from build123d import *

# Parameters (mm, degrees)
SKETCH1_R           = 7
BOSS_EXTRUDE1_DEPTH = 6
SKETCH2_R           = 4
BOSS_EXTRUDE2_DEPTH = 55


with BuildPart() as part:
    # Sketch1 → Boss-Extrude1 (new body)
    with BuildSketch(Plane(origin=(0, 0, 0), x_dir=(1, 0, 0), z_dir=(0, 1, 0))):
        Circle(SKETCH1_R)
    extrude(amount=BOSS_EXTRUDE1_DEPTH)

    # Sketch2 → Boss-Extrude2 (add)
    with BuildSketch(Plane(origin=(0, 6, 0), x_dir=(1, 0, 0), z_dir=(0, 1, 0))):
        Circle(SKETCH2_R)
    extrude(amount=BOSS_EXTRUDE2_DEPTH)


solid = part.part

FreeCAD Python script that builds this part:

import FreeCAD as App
import Part
import Sketcher
from FreeCAD import Vector

doc = App.newDocument("Part")
params = doc.addObject("Spreadsheet::Sheet", "Params")
for row, (alias, value) in enumerate([
    ("sketch1_diameter", "14 mm"),
    ("pad1_length", "6 mm"),
    ("sketch2_diameter", "8 mm"),
    ("pad2_length", "55 mm"),
], start=1):
    params.set(f"A{row}", alias)
    params.set(f"B{row}", "=" + value)
    params.setAlias(f"B{row}", alias)

body = doc.addObject("PartDesign::Body", "Body")

sketch1 = body.newObject("Sketcher::SketchObject", "Sketch")
sketch1.AttachmentSupport = (doc.getObject("XZ_Plane"), [""])
sketch1.MapMode = "FlatFace"
sketch1.addGeometry(Part.Circle(Vector(0, 0, 0), Vector(0, 0, 1), 7), False)
sketch1.addConstraint(Sketcher.Constraint("Coincident", 0, 3, -1, 1))
sketch1.addConstraint(Sketcher.Constraint("Diameter", 0, 14.0))
sketch1.setExpression("Constraints[1]", "Params.sketch1_diameter")
pad1 = body.newObject("PartDesign::Pad", "Pad")
pad1.Profile = sketch1
pad1.setExpression("Length", "Params.pad1_length")
pad1.Reversed = True

sketch2 = body.newObject("Sketcher::SketchObject", "Sketch001")
sketch2.AttachmentSupport = (doc.getObject("XZ_Plane"), [""])
sketch2.MapMode = "FlatFace"
sketch2.AttachmentOffset = App.Placement(Vector(0, 0, -6), App.Rotation())
sketch2.addGeometry(Part.Circle(Vector(0, 0, 0), Vector(0, 0, 1), 4), False)
sketch2.addConstraint(Sketcher.Constraint("Coincident", 0, 3, -1, 1))
sketch2.addConstraint(Sketcher.Constraint("Diameter", 0, 8.0))
sketch2.setExpression("Constraints[1]", "Params.sketch2_diameter")
pad2 = body.newObject("PartDesign::Pad", "Pad001")
pad2.Profile = sketch2
pad2.setExpression("Length", "Params.pad2_length")
pad2.Reversed = True

doc.recompute()
